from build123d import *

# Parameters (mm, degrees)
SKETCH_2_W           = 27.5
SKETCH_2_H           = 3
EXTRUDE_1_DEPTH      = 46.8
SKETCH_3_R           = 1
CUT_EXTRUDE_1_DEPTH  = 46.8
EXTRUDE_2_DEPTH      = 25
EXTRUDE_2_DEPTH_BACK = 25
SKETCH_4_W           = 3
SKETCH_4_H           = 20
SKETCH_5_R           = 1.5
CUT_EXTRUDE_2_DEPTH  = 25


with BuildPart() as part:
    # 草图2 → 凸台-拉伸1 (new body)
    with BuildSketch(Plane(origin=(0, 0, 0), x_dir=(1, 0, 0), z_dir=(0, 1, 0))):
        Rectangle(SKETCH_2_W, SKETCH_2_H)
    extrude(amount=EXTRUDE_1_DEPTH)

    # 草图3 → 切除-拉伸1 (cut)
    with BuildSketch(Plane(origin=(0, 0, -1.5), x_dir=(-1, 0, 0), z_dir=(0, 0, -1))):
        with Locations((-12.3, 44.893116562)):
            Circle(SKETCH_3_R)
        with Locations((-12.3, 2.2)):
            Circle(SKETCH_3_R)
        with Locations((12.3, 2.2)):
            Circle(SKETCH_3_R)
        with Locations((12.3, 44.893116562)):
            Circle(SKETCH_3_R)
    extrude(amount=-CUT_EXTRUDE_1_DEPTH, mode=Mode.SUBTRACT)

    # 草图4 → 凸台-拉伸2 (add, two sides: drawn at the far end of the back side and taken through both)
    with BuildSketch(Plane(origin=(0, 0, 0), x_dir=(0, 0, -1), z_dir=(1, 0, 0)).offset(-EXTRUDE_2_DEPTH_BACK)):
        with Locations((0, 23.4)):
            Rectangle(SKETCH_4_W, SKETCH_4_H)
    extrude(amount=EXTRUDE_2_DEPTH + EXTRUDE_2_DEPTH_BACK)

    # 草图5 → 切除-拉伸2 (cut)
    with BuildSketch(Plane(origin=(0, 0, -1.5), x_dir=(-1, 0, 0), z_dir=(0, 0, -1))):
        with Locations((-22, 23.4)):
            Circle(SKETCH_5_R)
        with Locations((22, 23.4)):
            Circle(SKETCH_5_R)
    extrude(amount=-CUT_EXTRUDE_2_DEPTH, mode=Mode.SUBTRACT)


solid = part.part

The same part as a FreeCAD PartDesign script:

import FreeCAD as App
import Part
import Sketcher
Q = App.Units.Quantity


def add_polygon(sketch, points):
    """Adds a closed chain of lines whose ends are joined by coincident constraints."""
    first, n = sketch.GeometryCount, len(points)
    for a, b in zip(points, points[1:] + points[:1]):
        sketch.addGeometry(Part.LineSegment(App.Vector(*a, 0), App.Vector(*b, 0)), False)
    for i in range(n):
        sketch.addConstraint(Sketcher.Constraint("Coincident", first + i, 2, first + (i + 1) % n, 1))

doc = App.newDocument("Part")
body = doc.addObject("PartDesign::Body", "Body")

sketch1 = doc.addObject("Sketcher::SketchObject", "Sketch")
body.addObject(sketch1)
sketch1.AttachmentSupport = (doc.XZ_Plane, [""])
sketch1.MapMode = "FlatFace"
add_polygon(sketch1, [(-13.8, -1.5), (-13.8, 1.5), (13.8, 1.5), (13.8, -1.5)])
sketch1.addConstraint([
    Sketcher.Constraint("Vertical", 0),
    Sketcher.Constraint("Horizontal", 1),
    Sketcher.Constraint("Vertical", 2),
    Sketcher.Constraint("Horizontal", 3),
    Sketcher.Constraint("Symmetric", 0, 2, 2, 2, -1, 1),
    Sketcher.Constraint("DistanceY", 0, 1, 0, 2, Q("3 mm")),
    Sketcher.Constraint("DistanceX", 1, 1, 1, 2, Q("27.5 mm")),
])
pad1 = doc.addObject("PartDesign::Pad", "Pad")
body.addObject(pad1)
pad1.Profile = sketch1
pad1.Length = 46.8
pad1.Reversed = True

sketch2 = doc.addObject("Sketcher::SketchObject", "Sketch001")
body.addObject(sketch2)
sketch2.AttachmentSupport = (doc.XY_Plane, [""])
sketch2.MapMode = "FlatFace"
sketch2.AttachmentOffset = App.Placement(App.Vector(0, 0, -1.5), App.Rotation())
sketch2.addGeometry([
    Part.Circle(App.Vector(12.3, 44.9, 0), App.Vector(0, 0, 1), 1),
    Part.Circle(App.Vector(12.3, 2.2, 0), App.Vector(0, 0, 1), 1),
    Part.Circle(App.Vector(-12.3, 2.2, 0), App.Vector(0, 0, 1), 1),
    Part.Circle(App.Vector(-12.3, 44.9, 0), App.Vector(0, 0, 1), 1),
], False)
sketch2.addConstraint([
    Sketcher.Constraint("Equal", 0, 1),
    Sketcher.Constraint("Equal", 1, 2),
    Sketcher.Constraint("Equal", 2, 3),
    Sketcher.Constraint("Symmetric", 1, 3, 2, 3, -2),
    Sketcher.Constraint("Symmetric", 0, 3, 3, 3, -2),
    Sketcher.Constraint("Vertical", 0, 3, 1, 3),
    Sketcher.Constraint("Diameter", 0, Q("2 mm")),
    Sketcher.Constraint("DistanceX", -1, 1, 0, 3, Q("12.3 mm")),
    Sketcher.Constraint("DistanceY", -1, 1, 1, 3, Q("2.2 mm")),
    Sketcher.Constraint("DistanceY", -1, 1, 0, 3, Q("44.893117 mm")),
])
pocket1 = doc.addObject("PartDesign::Pocket", "Pocket")
body.addObject(pocket1)
pocket1.Profile = sketch2
pocket1.Length = 46.8
pocket1.Reversed = True

sketch3 = doc.addObject("Sketcher::SketchObject", "Sketch002")
body.addObject(sketch3)
sketch3.AttachmentSupport = (doc.YZ_Plane, [""])
sketch3.MapMode = "FlatFace"
add_polygon(sketch3, [(33.4, 1.5), (13.4, 1.5), (13.4, -1.5), (33.4, -1.5)])
sketch3.addConstraint([
    Sketcher.Constraint("Horizontal", 0),
    Sketcher.Constraint("Vertical", 1),
    Sketcher.Constraint("Horizontal", 2),
    Sketcher.Constraint("Vertical", 3),
    Sketcher.Constraint("DistanceX", 0, 2, 0, 1, Q("20 mm")),
    Sketcher.Constraint("DistanceY", 1, 2, 1, 1, Q("3 mm")),
    Sketcher.Constraint("DistanceX", -1, 1, 0, 2, Q("13.4 mm")),
    Sketcher.Constraint("DistanceY", -1, 1, 0, 2, Q("1.5 mm")),
])
pad2 = doc.addObject("PartDesign::Pad", "Pad001")
body.addObject(pad2)
pad2.Profile = sketch3
pad2.Type = "TwoLengths"
pad2.Length = 25
pad2.Length2 = 25

sketch4 = doc.addObject("Sketcher::SketchObject", "Sketch003")
body.addObject(sketch4)
sketch4.AttachmentSupport = (doc.XY_Plane, [""])
sketch4.MapMode = "FlatFace"
sketch4.AttachmentOffset = App.Placement(App.Vector(0, 0, -1.5), App.Rotation())
sketch4.addGeometry([
    Part.Circle(App.Vector(22, 23.4, 0), App.Vector(0, 0, 1), 1.5),
    Part.Circle(App.Vector(-22, 23.4, 0), App.Vector(0, 0, 1), 1.5),
], False)
sketch4.addConstraint([
    Sketcher.Constraint("Equal", 0, 1),
    Sketcher.Constraint("Symmetric", 0, 3, 1, 3, -2),
    Sketcher.Constraint("Diameter", 0, Q("3 mm")),
    Sketcher.Constraint("DistanceX", -1, 1, 0, 3, Q("22 mm")),
    Sketcher.Constraint("DistanceY", -1, 1, 0, 3, Q("23.4 mm")),
])
pocket2 = doc.addObject("PartDesign::Pocket", "Pocket001")
body.addObject(pocket2)
pocket2.Profile = sketch4
pocket2.Length = 25
pocket2.Reversed = True

doc.recompute()
